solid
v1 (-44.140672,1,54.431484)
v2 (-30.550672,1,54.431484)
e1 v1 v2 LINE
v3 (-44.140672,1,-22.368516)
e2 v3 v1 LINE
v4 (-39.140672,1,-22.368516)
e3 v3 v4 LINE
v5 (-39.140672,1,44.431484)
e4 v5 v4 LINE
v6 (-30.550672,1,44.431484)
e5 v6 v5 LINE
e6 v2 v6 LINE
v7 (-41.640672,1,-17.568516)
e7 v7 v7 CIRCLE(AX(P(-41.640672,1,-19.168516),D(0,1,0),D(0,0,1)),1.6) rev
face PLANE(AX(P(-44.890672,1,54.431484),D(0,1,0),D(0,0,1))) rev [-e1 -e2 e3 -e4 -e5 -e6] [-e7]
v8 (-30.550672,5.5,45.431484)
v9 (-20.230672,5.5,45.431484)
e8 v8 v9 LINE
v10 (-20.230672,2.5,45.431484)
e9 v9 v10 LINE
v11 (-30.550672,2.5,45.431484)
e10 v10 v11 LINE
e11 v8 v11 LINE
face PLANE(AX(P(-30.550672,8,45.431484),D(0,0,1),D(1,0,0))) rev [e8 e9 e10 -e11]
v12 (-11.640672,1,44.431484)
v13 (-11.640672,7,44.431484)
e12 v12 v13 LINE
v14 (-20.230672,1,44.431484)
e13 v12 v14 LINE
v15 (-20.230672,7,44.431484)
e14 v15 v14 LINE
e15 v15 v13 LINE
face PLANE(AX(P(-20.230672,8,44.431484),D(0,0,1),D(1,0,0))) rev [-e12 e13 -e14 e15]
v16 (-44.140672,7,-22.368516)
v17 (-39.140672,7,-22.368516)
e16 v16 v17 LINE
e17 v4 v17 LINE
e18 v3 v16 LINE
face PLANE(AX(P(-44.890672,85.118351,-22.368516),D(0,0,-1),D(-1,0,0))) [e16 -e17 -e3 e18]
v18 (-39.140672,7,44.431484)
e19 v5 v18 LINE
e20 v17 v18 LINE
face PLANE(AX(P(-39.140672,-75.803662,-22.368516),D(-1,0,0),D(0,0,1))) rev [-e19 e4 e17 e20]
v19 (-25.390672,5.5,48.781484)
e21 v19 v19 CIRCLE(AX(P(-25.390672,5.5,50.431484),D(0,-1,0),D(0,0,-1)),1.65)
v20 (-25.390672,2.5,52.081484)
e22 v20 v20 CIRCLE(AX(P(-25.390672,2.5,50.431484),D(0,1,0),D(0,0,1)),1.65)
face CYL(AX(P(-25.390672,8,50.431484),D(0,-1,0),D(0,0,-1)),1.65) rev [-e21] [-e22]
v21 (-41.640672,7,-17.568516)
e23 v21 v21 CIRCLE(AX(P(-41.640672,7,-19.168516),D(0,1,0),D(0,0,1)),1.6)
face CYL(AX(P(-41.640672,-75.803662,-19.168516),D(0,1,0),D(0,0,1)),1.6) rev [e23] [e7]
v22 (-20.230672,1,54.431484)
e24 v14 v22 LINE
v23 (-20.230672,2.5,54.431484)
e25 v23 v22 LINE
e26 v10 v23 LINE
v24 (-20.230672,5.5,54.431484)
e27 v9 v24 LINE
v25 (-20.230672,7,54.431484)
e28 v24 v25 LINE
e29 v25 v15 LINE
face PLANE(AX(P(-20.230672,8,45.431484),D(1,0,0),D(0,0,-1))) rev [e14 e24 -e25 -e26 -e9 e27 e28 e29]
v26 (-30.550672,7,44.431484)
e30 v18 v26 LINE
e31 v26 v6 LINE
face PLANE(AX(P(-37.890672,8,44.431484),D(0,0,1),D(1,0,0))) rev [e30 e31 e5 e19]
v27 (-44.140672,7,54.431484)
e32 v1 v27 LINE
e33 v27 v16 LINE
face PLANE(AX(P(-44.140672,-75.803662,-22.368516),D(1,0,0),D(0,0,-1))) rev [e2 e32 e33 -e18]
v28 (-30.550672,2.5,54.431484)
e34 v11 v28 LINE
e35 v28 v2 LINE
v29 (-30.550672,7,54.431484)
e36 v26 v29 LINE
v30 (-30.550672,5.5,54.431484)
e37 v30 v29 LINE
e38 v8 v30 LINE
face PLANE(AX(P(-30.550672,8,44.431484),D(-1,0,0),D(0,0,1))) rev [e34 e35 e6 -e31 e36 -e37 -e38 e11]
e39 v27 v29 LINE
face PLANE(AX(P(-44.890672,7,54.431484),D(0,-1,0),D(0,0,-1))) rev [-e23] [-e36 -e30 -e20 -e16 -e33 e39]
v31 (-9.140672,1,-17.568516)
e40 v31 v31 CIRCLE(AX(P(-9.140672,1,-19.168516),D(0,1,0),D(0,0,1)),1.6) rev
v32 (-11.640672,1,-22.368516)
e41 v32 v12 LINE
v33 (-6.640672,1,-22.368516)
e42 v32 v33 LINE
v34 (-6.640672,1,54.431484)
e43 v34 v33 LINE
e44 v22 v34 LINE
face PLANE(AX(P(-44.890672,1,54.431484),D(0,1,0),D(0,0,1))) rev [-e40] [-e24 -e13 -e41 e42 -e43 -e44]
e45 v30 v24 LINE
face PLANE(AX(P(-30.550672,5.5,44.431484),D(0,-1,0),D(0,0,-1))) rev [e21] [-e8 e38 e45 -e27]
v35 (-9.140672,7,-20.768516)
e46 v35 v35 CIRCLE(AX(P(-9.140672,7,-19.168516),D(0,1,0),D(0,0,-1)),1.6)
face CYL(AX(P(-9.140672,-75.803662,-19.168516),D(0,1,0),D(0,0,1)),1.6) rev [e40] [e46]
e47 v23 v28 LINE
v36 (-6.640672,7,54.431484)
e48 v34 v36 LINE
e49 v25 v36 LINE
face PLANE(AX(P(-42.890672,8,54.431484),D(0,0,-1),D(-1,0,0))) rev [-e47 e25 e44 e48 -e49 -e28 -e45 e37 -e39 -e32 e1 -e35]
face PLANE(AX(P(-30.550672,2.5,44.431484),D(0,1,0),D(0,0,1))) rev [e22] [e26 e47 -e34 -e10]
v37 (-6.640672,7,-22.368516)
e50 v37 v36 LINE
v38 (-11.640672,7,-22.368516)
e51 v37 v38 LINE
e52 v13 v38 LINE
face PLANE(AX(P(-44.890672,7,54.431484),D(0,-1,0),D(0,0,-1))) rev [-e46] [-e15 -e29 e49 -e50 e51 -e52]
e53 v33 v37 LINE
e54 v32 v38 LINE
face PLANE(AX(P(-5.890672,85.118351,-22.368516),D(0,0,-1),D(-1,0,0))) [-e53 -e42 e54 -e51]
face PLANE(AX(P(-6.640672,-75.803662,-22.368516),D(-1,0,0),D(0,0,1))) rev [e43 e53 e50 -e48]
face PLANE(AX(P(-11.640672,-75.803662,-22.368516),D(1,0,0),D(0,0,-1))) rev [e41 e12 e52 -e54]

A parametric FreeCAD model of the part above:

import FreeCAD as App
import Part
import Sketcher
from FreeCAD import Vector


def add_polygon(sketch, points):
    """Adds a closed chain of lines whose ends are joined by coincident constraints."""
    first, n = sketch.GeometryCount, len(points)
    for a, b in zip(points, points[1:] + points[:1]):
        sketch.addGeometry(Part.LineSegment(App.Vector(*a, 0), App.Vector(*b, 0)), False)
    for i in range(n):
        sketch.addConstraint(Sketcher.Constraint("Coincident", first + i, 2, first + (i + 1) % n, 1))

doc = App.newDocument("Part")
body = doc.addObject("PartDesign::Body", "Body")

sketch1 = body.newObject("Sketcher::SketchObject", "Sketch")
sketch1.AttachmentSupport = (doc.getObject("XZ_Plane"), [""])
sketch1.MapMode = "FlatFace"
add_polygon(sketch1, [(-30.6, 44.4), (-37.9, 44.4), (-37.9, -4.5), (-42.9, -4.5), (-42.9, 54.4), (-7.9, 54.4), (-7.9, -4.5), (-12.9, -4.5), (-12.9, 44.4), (-20.2, 44.4), (-20.2, 45.4), (-30.6, 45.4)])
sketch1.addGeometry(Part.Circle(Vector(-25.4, 50.4, 0), Vector(0, 0, 1), 1.6), False)
sketch1.addConstraint([
    Sketcher.Constraint("Horizontal", 0),
    Sketcher.Constraint("Vertical", 1),
    Sketcher.Constraint("Horizontal", 2),
    Sketcher.Constraint("Vertical", 3),
    Sketcher.Constraint("Horizontal", 4),
    Sketcher.Constraint("Vertical", 5),
    Sketcher.Constraint("Horizontal", 6),
    Sketcher.Constraint("Vertical", 7),
    Sketcher.Constraint("Horizontal", 8),
    Sketcher.Constraint("Vertical", 9),
    Sketcher.Constraint("Horizontal", 10),
    Sketcher.Constraint("Vertical", 11),
    Sketcher.Constraint("Horizontal", 2, 2, 5, 2),
    Sketcher.Constraint("Horizontal", 0, 2, 7, 2),
    Sketcher.Constraint("Equal", 2, 6),
    Sketcher.Constraint("Equal", 0, 8),
    Sketcher.Constraint("Diameter", 12, 3.3),
    Sketcher.Constraint("DistanceX", 2, 2, 2, 1, 5.0),
    Sketcher.Constraint("DistanceX", 4, 1, 4, 2, 35.0),
    Sketcher.Constraint("DistanceY", 9, 1, 9, 2, 1.0),
    Sketcher.Constraint("DistanceY", 1, 2, 1, 1, 48.9),
    Sketcher.Constraint("DistanceY", 3, 1, 3, 2, 58.9),
    Sketcher.Constraint("DistanceY", 0, 2, 12, 3, 6.0),
    Sketcher.Constraint("DistanceX", 0, 2, 0, 1, 7.34),
    Sketcher.Constraint("DistanceX", 0, 2, 12, 3, 12.5),
    Sketcher.Constraint("DistanceX", 12, 3, -1, 1, 25.390672),
    Sketcher.Constraint("DistanceY", -1, 1, 12, 3, 50.431484),
])
pad1 = body.newObject("PartDesign::Pad", "Pad")
pad1.Profile = sketch1
pad1.Length = 8
pad1.Reversed = True

sketch2 = body.newObject("Sketcher::SketchObject", "Sketch001")
sketch2.AttachmentSupport = (doc.getObject("XZ_Plane"), [""])
sketch2.MapMode = "FlatFace"
sketch2.AttachmentOffset = App.Placement(Vector(0, 0, -8), App.Rotation())
add_polygon(sketch2, [(-31, 45), (-31, 54), (-20, 54), (-20, 45)])
sketch2.addConstraint([
    Sketcher.Constraint("Vertical", 0),
    Sketcher.Constraint("Horizontal", 1),
    Sketcher.Constraint("Vertical", 2),
    Sketcher.Constraint("Horizontal", 3),
    Sketcher.Constraint("DistanceY", 0, 1, 0, 2, 9.0),
    Sketcher.Constraint("DistanceX", 1, 1, 1, 2, 10.32),
    Sketcher.Constraint("DistanceX", 0, 2, -1, 1, 30.550672),
    Sketcher.Constraint("DistanceY", -1, 1, 0, 2, 54.431484),
])
pocket1 = body.newObject("PartDesign::Pocket", "Pocket")
pocket1.Profile = sketch2
pocket1.Length = 2.4
pocket1.Reversed = True

sketch3 = body.newObject("Sketcher::SketchObject", "Sketch002")
sketch3.AttachmentSupport = (doc.getObject("XZ_Plane"), [""])
sketch3.MapMode = "FlatFace"
add_polygon(sketch3, [(-31, 54), (-31, 45), (-20, 45), (-20, 54)])
sketch3.addConstraint([
    Sketcher.Constraint("Vertical", 0),
    Sketcher.Constraint("Horizontal", 1),
    Sketcher.Constraint("Vertical", 2),
    Sketcher.Constraint("Horizontal", 3),
    Sketcher.Constraint("DistanceY", 0, 2, 0, 1, 9.0),
    Sketcher.Constraint("DistanceX", 1, 1, 1, 2, 10.32),
    Sketcher.Constraint("DistanceX", 0, 2, -1, 1, 30.550672),
    Sketcher.Constraint("DistanceY", -1, 1, 0, 2, 45.431484),
])
pocket2 = body.newObject("PartDesign::Pocket", "Pocket001")
pocket2.Profile = sketch3
pocket2.Length = 2.4

sketch4 = body.newObject("Sketcher::SketchObject", "Sketch003")
sketch4.AttachmentSupport = (doc.getObject("XZ_Plane"), [""])
sketch4.MapMode = "FlatFace"
add_polygon(sketch4, [(-37.9, -22.4), (-37.9, -4.5), (-42.9, -4.5), (-42.9, 54.4), (-44.9, 54.4), (-44.9, -22.4)])
add_polygon(sketch4, [(-7.9, -4.5), (-12.9, -4.5), (-12.9, -22.4), (-5.9, -22.4), (-5.9, 54.4), (-7.9, 54.4)])
sketch4.addConstraint([
    Sketcher.Constraint("Vertical", 0),
    Sketcher.Constraint("Horizontal", 1),
    Sketcher.Constraint("Vertical", 2),
    Sketcher.Constraint("Horizontal", 3),
    Sketcher.Constraint("Vertical", 4),
    Sketcher.Constraint("Horizontal", 5),
    Sketcher.Constraint("Horizontal", 6),
    Sketcher.Constraint("Vertical", 7),
    Sketcher.Constraint("Horizontal", 8),
    Sketcher.Constraint("Vertical", 9),
    Sketcher.Constraint("Horizontal", 10),
    Sketcher.Constraint("Vertical", 11),
    Sketcher.Constraint("Horizontal", 1, 2, 6, 2),
    Sketcher.Constraint("Horizontal", 5, 2, 7, 2),
    Sketcher.Constraint("Horizontal", 3, 2, 9, 2),
    Sketcher.Constraint("Equal", 1, 6),
    Sketcher.Constraint("Equal", 5, 8),
    Sketcher.Constraint("DistanceX", 1, 2, 1, 1, 5.0),
    Sketcher.Constraint("DistanceX", 3, 2, 3, 1, 2.0),
    Sketcher.Constraint("DistanceY", 0, 1, 0, 2, 17.9),
    Sketcher.Constraint("DistanceY", 2, 1, 2, 2, 58.9),
    Sketcher.Constraint("DistanceX", 0, 2, 6, 2, 25.0),
    Sketcher.Constraint("DistanceX", 0, 2, -1, 1, 37.890672),
    Sketcher.Constraint("DistanceY", 0, 2, -1, 1, 4.468516),
])
pad2 = body.newObject("PartDesign::Pad", "Pad001")
pad2.Profile = sketch4
pad2.Length = 8
pad2.Reversed = True

sketch5 = body.newObject("Sketcher::SketchObject", "Sketch004")
sketch5.AttachmentSupport = (doc.getObject("YZ_Plane"), [""])
sketch5.MapMode = "FlatFace"
sketch5.AttachmentOffset = App.Placement(Vector(0, 0, -5.890672), App.Rotation())
add_polygon(sketch5, [(8, 54.4), (7, 54.4), (7, -22.4), (8, -22.4)])
add_polygon(sketch5, [(1, 54.4), (0, 54.4), (0, -22.4), (1, -22.4)])
sketch5.addConstraint([
    Sketcher.Constraint("Horizontal", 0),
    Sketcher.Constraint("Vertical", 1),
    Sketcher.Constraint("Horizontal", 2),
    Sketcher.Constraint("Vertical", 3),
    Sketcher.Constraint("Horizontal", 4),
    Sketcher.Constraint("Vertical", 5),
    Sketcher.Constraint("Horizontal", 6),
    Sketcher.Constraint("Vertical", 7),
    Sketcher.Constraint("PointOnObject", 4, 2, -2),
    Sketcher.Constraint("Horizontal", 3, 2, 4, 2),
    Sketcher.Constraint("Horizontal", 2, 2, 5, 2),
    Sketcher.Constraint("Equal", 2, 4),
    Sketcher.Constraint("DistanceX", 0, 2, 0, 1, 1.0),
    Sketcher.Constraint("DistanceY", 1, 2, 1, 1, 76.8),
    Sketcher.Constraint("DistanceX", -1, 1, 0, 2, 7.0),
    Sketcher.Constraint("DistanceY", -1, 1, 0, 2, 54.431484),
])
pocket3 = body.newObject("PartDesign::Pocket", "Pocket002")
pocket3.Profile = sketch5
pocket3.Type = "ThroughAll"

sketch6 = body.newObject("Sketcher::SketchObject", "Sketch005")
sketch6.AttachmentSupport = (doc.getObject("XY_Plane"), [""])
sketch6.MapMode = "FlatFace"
sketch6.AttachmentOffset = App.Placement(Vector(0, 0, 54.431484), App.Rotation())
add_polygon(sketch6, [(-30.55, 5.6), (-30.55, 5.5), (-20.23, 5.5), (-20.23, 5.6)])
add_polygon(sketch6, [(-30.55, 2.5), (-30.55, 2.4), (-20.23, 2.4), (-20.23, 2.5)])
sketch6.addConstraint([
    Sketcher.Constraint("Vertical", 0),
    Sketcher.Constraint("Horizontal", 1),
    Sketcher.Constraint("Vertical", 2),
    Sketcher.Constraint("Horizontal", 3),
    Sketcher.Constraint("Vertical", 4),
    Sketcher.Constraint("Horizontal", 5),
    Sketcher.Constraint("Vertical", 6),
    Sketcher.Constraint("Horizontal", 7),
    Sketcher.Constraint("Vertical", 3, 2, 4, 2),
    Sketcher.Constraint("Vertical", 2, 2, 5, 2),
    Sketcher.Constraint("Equal", 2, 4),
    Sketcher.Constraint("DistanceY", 0, 2, 0, 1, 0.1),
    Sketcher.Constraint("DistanceY", 6, 2, 1, 2, 3.0),
    Sketcher.Constraint("DistanceX", 1, 1, 1, 2, 10.32),
    Sketcher.Constraint("DistanceY", -1, 1, 0, 2, 5.5),
    Sketcher.Constraint("DistanceX", 0, 2, -1, 1, 30.550672),
])
pocket4 = body.newObject("PartDesign::Pocket", "Pocket003")
pocket4.Profile = sketch6
pocket4.Length = 10

sketch7 = body.newObject("Sketcher::SketchObject", "Sketch006")
sketch7.AttachmentSupport = (doc.getObject("XZ_Plane"), [""])
sketch7.MapMode = "FlatFace"
sketch7.AttachmentOffset = App.Placement(Vector(0, 0, -7), App.Rotation())
sketch7.addGeometry(Part.Circle(Vector(-41.6, -19.2, 0), Vector(0, 0, 1), 1.6), False)
sketch7.addGeometry(Part.Circle(Vector(-9.1, -19.2, 0), Vector(0, 0, 1), 1.6), False)
add_polygon(sketch7, [(-39.1, -22.4), (-39.1, 44.4), (-37.9, 44.4), (-37.9, -22.4)])
add_polygon(sketch7, [(-12.9, -22.4), (-12.9, 44.4), (-11.6, 44.4), (-11.6, -22.4)])
add_polygon(sketch7, [(-6.6, -22.4), (-6.6, 54.4), (-5.9, 54.4), (-5.9, -22.4)])
add_polygon(sketch7, [(-44.9, -22.4), (-44.9, 54.4), (-44.1, 54.4), (-44.1, -22.4)])
sketch7.addConstraint([
    Sketcher.Constraint("Vertical", 2),
    Sketcher.Constraint("Horizontal", 3),
    Sketcher.Constraint("Vertical", 4),
    Sketcher.Constraint("Horizontal", 5),
    Sketcher.Constraint("Vertical", 6),
    Sketcher.Constraint("Horizontal", 7),
    Sketcher.Constraint("Vertical", 8),
    Sketcher.Constraint("Horizontal", 9),
    Sketcher.Constraint("Vertical", 10),
    Sketcher.Constraint("Horizontal", 11),
    Sketcher.Constraint("Vertical", 12),
    Sketcher.Constraint("Horizontal", 13),
    Sketcher.Constraint("Vertical", 14),
    Sketcher.Constraint("Horizontal", 15),
    Sketcher.Constraint("Vertical", 16),
    Sketcher.Constraint("Horizontal", 17),
    Sketcher.Constraint("Equal", 0, 1),
    Sketcher.Constraint("Horizontal", 0, 3, 1, 3),
    Sketcher.Constraint("Horizontal", 3, 2, 6, 2),
    Sketcher.Constraint("Horizontal", 5, 2, 8, 2),
    Sketcher.Constraint("Horizontal", 9, 2, 12, 2),
    Sketcher.Constraint("Horizontal", 11, 2, 14, 2),
    Sketcher.Constraint("Horizontal", 13, 2, 16, 2),
    Sketcher.Constraint("Equal", 5, 7),
    Sketcher.Constraint("Equal", 13, 15),
    Sketcher.Constraint("Diameter", 0, 3.2),
    Sketcher.Constraint("DistanceY", 2, 1, 2, 2, 66.8),
    Sketcher.Constraint("DistanceY", 10, 1, 10, 2, 76.8),
    Sketcher.Constraint("DistanceX", 2, 2, 1, 3, 30.0),
    Sketcher.Constraint("DistanceX", 3, 2, 6, 2, 25.0),
    Sketcher.Constraint("DistanceX", 0, 3, 7, 2, 30.0),
    Sketcher.Constraint("DistanceX", 7, 2, 10, 2, 5.0),
    Sketcher.Constraint("DistanceX", 6, 2, 11, 2, 7.0),
    Sketcher.Constraint("DistanceX", 14, 2, 3, 2, 7.0),
    Sketcher.Constraint("DistanceX", 3, 1, 3, 2, 1.25),
    Sketcher.Constraint("DistanceY", 0, 3, 2, 2, 63.6),
    Sketcher.Constraint("DistanceX", 0, 3, -1, 1, 41.640672),
    Sketcher.Constraint("DistanceY", 0, 3, -1, 1, 19.168516),
])
pocket5 = body.newObject("PartDesign::Pocket", "Pocket004")
pocket5.Profile = sketch7
pocket5.Length = 6
pocket5.Reversed = True

doc.recompute()
